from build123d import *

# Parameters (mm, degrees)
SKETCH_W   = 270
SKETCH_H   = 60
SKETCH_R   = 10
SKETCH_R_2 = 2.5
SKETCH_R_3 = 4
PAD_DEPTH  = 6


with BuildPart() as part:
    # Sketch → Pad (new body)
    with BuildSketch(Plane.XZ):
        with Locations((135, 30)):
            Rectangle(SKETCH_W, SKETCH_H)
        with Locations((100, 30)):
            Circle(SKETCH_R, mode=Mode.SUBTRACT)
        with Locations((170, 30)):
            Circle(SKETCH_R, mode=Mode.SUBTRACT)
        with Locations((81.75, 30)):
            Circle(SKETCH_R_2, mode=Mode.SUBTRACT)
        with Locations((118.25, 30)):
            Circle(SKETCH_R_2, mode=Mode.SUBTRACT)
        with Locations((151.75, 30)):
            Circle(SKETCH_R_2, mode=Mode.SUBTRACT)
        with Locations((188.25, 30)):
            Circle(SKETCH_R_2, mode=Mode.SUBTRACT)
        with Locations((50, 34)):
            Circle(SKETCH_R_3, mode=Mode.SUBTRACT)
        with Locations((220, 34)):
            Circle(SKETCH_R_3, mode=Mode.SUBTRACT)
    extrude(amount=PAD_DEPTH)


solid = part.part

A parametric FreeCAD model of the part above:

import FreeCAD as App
import Part
import Sketcher
from FreeCAD import Vector


def add_polygon(sketch, points):
    """Adds a closed chain of lines whose ends are joined by coincident constraints."""
    first, n = sketch.GeometryCount, len(points)
    for a, b in zip(points, points[1:] + points[:1]):
        sketch.addGeometry(Part.LineSegment(App.Vector(*a, 0), App.Vector(*b, 0)), False)
    for i in range(n):
        sketch.addConstraint(Sketcher.Constraint("Coincident", first + i, 2, first + (i + 1) % n, 1))

doc = App.newDocument("Part")
params = doc.addObject("Spreadsheet::Sheet", "Params")
for row, (alias, value) in enumerate([
    ("sketch1_diameter", "5 mm"),
    ("sketch1_diameter2", "8 mm"),
    ("sketch1_diameter3", "20 mm"),
    ("sketch1_width", "270 mm"),
    ("sketch1_height", "60 mm"),
    ("pad1_length", "6 mm"),
], start=1):
    params.set(f"A{row}", alias)
    params.set(f"B{row}", "=" + value)
    params.setAlias(f"B{row}", alias)

body = doc.addObject("PartDesign::Body", "Body")

sketch1 = body.newObject("Sketcher::SketchObject", "Sketch")
sketch1.AttachmentSupport = (doc.getObject("XZ_Plane"), [""])
sketch1.MapMode = "FlatFace"
add_polygon(sketch1, [(0, 60), (0, 0), (270, 0), (270, 60)])
sketch1.addGeometry(Part.Circle(Vector(81.8, 30, 0), Vector(0, 0, 1), 2.5), False)
sketch1.addGeometry(Part.Circle(Vector(50, 34, 0), Vector(0, 0, 1), 4), False)
sketch1.addGeometry(Part.Circle(Vector(100, 30, 0), Vector(0, 0, 1), 10), False)
sketch1.addGeometry(Part.Circle(Vector(118.2, 30, 0), Vector(0, 0, 1), 2.5), False)
sketch1.addGeometry(Part.Circle(Vector(151.8, 30, 0), Vector(0, 0, 1), 2.5), False)
sketch1.addGeometry(Part.Circle(Vector(170, 30, 0), Vector(0, 0, 1), 10), False)
sketch1.addGeometry(Part.Circle(Vector(188.2, 30, 0), Vector(0, 0, 1), 2.5), False)
sketch1.addGeometry(Part.Circle(Vector(220, 34, 0), Vector(0, 0, 1), 4), False)
sketch1.addConstraint(Sketcher.Constraint("Vertical", 0))
sketch1.addConstraint(Sketcher.Constraint("Horizontal", 1))
sketch1.addConstraint(Sketcher.Constraint("Vertical", 2))
sketch1.addConstraint(Sketcher.Constraint("Horizontal", 3))
sketch1.addConstraint(Sketcher.Constraint("Coincident", 0, 2, -1, 1))
sketch1.addConstraint(Sketcher.Constraint("Equal", 4, 7))
sketch1.addConstraint(Sketcher.Constraint("Equal", 7, 8))
sketch1.addConstraint(Sketcher.Constraint("Equal", 6, 9))
sketch1.addConstraint(Sketcher.Constraint("Equal", 8, 10))
sketch1.addConstraint(Sketcher.Constraint("Equal", 5, 11))
sketch1.addConstraint(Sketcher.Constraint("Horizontal", 4, 3, 6, 3))
sketch1.addConstraint(Sketcher.Constraint("Horizontal", 6, 3, 7, 3))
sketch1.addConstraint(Sketcher.Constraint("Horizontal", 7, 3, 8, 3))
sketch1.addConstraint(Sketcher.Constraint("Horizontal", 8, 3, 9, 3))
sketch1.addConstraint(Sketcher.Constraint("Horizontal", 9, 3, 10, 3))
sketch1.addConstraint(Sketcher.Constraint("Horizontal", 5, 3, 11, 3))
sketch1.addConstraint(Sketcher.Constraint("Diameter", 4, 5.0))
sketch1.addConstraint(Sketcher.Constraint("Diameter", 5, 8.0))
sketch1.addConstraint(Sketcher.Constraint("Diameter", 6, 20.0))
sketch1.addConstraint(Sketcher.Constraint("DistanceX", 1, 1, 1, 2, 270.0))
sketch1.addConstraint(Sketcher.Constraint("DistanceY", 0, 2, 0, 1, 60.0))
sketch1.addConstraint(Sketcher.Constraint("DistanceY", -1, 1, 4, 3, 30.0))
sketch1.addConstraint(Sketcher.Constraint("DistanceX", -1, 1, 5, 3, 50.0))
sketch1.addConstraint(Sketcher.Constraint("DistanceY", -1, 1, 5, 3, 34.0))
sketch1.addConstraint(Sketcher.Constraint("DistanceX", -1, 1, 6, 3, 100.0))
sketch1.addConstraint(Sketcher.Constraint("DistanceX", -1, 1, 9, 3, 170.0))
sketch1.addConstraint(Sketcher.Constraint("DistanceX", -1, 1, 11, 3, 220.0))
sketch1.addConstraint(Sketcher.Constraint("DistanceX", 4, 3, 8, 3, 70.0))
sketch1.addConstraint(Sketcher.Constraint("DistanceX", 7, 3, 10, 3, 70.0))
sketch1.addConstraint(Sketcher.Constraint("DistanceX", 4, 3, 7, 3, 36.5))
sketch1.addConstraint(Sketcher.Constraint("DistanceX", -1, 1, 4, 3, 81.75))
sketch1.setExpression("Constraints[20]", "Params.sketch1_diameter")
sketch1.setExpression("Constraints[21]", "Params.sketch1_diameter2")
sketch1.setExpression("Constraints[22]", "Params.sketch1_diameter3")
sketch1.setExpression("Constraints[23]", "Params.sketch1_width")
sketch1.setExpression("Constraints[24]", "Params.sketch1_height")
pad1 = body.newObject("PartDesign::Pad", "Pad")
pad1.Profile = sketch1
pad1.setExpression("Length", "Params.pad1_length")

doc.recompute()
